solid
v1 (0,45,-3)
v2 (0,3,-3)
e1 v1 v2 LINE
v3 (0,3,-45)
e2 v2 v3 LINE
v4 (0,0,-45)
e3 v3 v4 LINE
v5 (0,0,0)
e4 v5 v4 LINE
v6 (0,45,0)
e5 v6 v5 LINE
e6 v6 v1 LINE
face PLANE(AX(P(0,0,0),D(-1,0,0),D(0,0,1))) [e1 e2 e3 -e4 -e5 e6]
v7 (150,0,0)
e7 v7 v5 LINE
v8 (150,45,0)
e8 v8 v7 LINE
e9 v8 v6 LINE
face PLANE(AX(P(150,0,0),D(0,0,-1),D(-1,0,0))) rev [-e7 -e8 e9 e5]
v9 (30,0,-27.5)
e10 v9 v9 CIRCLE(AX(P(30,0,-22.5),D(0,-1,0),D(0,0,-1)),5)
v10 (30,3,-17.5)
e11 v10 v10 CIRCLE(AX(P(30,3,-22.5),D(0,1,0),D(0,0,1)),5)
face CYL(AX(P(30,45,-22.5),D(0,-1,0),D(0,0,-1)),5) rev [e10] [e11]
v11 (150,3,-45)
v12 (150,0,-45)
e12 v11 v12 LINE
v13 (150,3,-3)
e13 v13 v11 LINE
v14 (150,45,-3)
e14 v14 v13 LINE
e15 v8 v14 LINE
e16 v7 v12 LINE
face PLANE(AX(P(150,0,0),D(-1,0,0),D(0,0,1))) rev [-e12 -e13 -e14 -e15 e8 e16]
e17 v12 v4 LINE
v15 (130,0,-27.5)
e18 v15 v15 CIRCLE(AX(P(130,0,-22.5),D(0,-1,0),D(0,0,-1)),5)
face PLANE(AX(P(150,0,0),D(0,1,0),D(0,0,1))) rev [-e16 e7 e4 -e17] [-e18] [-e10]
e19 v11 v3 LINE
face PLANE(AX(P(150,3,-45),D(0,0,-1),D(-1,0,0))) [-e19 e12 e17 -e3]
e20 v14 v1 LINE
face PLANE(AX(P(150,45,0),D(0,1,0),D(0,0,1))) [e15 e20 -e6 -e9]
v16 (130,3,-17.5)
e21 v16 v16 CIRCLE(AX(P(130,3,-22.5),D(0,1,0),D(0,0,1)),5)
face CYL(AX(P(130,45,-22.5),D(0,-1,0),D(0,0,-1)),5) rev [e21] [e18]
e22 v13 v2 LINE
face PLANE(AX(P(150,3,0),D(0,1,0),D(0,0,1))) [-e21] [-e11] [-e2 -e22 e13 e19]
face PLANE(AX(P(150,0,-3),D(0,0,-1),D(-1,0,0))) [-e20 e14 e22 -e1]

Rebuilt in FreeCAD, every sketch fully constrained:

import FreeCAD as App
import Part
import Sketcher

doc = App.newDocument("Part")
body = doc.addObject("PartDesign::Body", "Body")

# Sketch on YZ plane
sketch1 = doc.addObject("Sketcher::SketchObject", "Sketch")
body.addObject(sketch1)
sketch1.AttachmentSupport = (doc.YZ_Plane, [""])
sketch1.MapMode = "FlatFace"
sketch1.addGeometry([
    Part.LineSegment(App.Vector(0, 0, 0), App.Vector(0, -45, 0)),  # 0
    Part.LineSegment(App.Vector(0, -45, 0), App.Vector(3, -45, 0)),  # 1
    Part.LineSegment(App.Vector(3, -45, 0), App.Vector(3, -3, 0)),  # 2
    Part.LineSegment(App.Vector(3, -3, 0), App.Vector(45, -3, 0)),  # 3
    Part.LineSegment(App.Vector(45, -3, 0), App.Vector(45, 0, 0)),  # 4
    Part.LineSegment(App.Vector(45, 0, 0), App.Vector(0, 0, 0)),  # 5
], False)
sketch1.addConstraint([
    Sketcher.Constraint("Coincident", 0, 2, 1, 1),
    Sketcher.Constraint("Coincident", 1, 2, 2, 1),
    Sketcher.Constraint("Coincident", 2, 2, 3, 1),
    Sketcher.Constraint("Coincident", 3, 2, 4, 1),
    Sketcher.Constraint("Coincident", 4, 2, 5, 1),
    Sketcher.Constraint("Coincident", 5, 2, 0, 1),
    Sketcher.Constraint("Vertical", 0),
    Sketcher.Constraint("Horizontal", 1),
    Sketcher.Constraint("Vertical", 2),
    Sketcher.Constraint("Horizontal", 3),
    Sketcher.Constraint("Vertical", 4),
    Sketcher.Constraint("Horizontal", 5),
    Sketcher.Constraint("Coincident", 5, 2, -1, 1),
    Sketcher.Constraint("Equal", 5, 0),
    Sketcher.Constraint("Equal", 3, 2),
    Sketcher.Constraint("DistanceX", 1, 1, 1, 2, 3.0),
    Sketcher.Constraint("DistanceX", 3, 1, 3, 2, 42.0),
])
pad1 = doc.addObject("PartDesign::Pad", "Pad")
body.addObject(pad1)
pad1.Profile = sketch1
pad1.Length = 150

# Sketch on XZ plane
sketch2 = doc.addObject("Sketcher::SketchObject", "Sketch001")
body.addObject(sketch2)
sketch2.AttachmentSupport = (doc.XZ_Plane, [""])
sketch2.MapMode = "FlatFace"
sketch2.addGeometry([
    Part.Circle(App.Vector(30, -22, 0), App.Vector(0, 0, 1), 5),
    Part.Circle(App.Vector(130, -22, 0), App.Vector(0, 0, 1), 5),
], False)
sketch2.addConstraint([
    Sketcher.Constraint("Equal", 0, 1),
    Sketcher.Constraint("Horizontal", 0, 3, 1, 3),
    Sketcher.Constraint("Diameter", 0, 10.0),
    Sketcher.Constraint("DistanceX", -1, 1, 0, 3, 30.0),
    Sketcher.Constraint("DistanceX", -1, 1, 1, 3, 130.0),
    Sketcher.Constraint("DistanceY", 0, 3, -1, 1, 22.5),
])
pocket1 = doc.addObject("PartDesign::Pocket", "Pocket")
body.addObject(pocket1)
pocket1.Profile = sketch2
pocket1.Type = "ThroughAll"

doc.recompute()
